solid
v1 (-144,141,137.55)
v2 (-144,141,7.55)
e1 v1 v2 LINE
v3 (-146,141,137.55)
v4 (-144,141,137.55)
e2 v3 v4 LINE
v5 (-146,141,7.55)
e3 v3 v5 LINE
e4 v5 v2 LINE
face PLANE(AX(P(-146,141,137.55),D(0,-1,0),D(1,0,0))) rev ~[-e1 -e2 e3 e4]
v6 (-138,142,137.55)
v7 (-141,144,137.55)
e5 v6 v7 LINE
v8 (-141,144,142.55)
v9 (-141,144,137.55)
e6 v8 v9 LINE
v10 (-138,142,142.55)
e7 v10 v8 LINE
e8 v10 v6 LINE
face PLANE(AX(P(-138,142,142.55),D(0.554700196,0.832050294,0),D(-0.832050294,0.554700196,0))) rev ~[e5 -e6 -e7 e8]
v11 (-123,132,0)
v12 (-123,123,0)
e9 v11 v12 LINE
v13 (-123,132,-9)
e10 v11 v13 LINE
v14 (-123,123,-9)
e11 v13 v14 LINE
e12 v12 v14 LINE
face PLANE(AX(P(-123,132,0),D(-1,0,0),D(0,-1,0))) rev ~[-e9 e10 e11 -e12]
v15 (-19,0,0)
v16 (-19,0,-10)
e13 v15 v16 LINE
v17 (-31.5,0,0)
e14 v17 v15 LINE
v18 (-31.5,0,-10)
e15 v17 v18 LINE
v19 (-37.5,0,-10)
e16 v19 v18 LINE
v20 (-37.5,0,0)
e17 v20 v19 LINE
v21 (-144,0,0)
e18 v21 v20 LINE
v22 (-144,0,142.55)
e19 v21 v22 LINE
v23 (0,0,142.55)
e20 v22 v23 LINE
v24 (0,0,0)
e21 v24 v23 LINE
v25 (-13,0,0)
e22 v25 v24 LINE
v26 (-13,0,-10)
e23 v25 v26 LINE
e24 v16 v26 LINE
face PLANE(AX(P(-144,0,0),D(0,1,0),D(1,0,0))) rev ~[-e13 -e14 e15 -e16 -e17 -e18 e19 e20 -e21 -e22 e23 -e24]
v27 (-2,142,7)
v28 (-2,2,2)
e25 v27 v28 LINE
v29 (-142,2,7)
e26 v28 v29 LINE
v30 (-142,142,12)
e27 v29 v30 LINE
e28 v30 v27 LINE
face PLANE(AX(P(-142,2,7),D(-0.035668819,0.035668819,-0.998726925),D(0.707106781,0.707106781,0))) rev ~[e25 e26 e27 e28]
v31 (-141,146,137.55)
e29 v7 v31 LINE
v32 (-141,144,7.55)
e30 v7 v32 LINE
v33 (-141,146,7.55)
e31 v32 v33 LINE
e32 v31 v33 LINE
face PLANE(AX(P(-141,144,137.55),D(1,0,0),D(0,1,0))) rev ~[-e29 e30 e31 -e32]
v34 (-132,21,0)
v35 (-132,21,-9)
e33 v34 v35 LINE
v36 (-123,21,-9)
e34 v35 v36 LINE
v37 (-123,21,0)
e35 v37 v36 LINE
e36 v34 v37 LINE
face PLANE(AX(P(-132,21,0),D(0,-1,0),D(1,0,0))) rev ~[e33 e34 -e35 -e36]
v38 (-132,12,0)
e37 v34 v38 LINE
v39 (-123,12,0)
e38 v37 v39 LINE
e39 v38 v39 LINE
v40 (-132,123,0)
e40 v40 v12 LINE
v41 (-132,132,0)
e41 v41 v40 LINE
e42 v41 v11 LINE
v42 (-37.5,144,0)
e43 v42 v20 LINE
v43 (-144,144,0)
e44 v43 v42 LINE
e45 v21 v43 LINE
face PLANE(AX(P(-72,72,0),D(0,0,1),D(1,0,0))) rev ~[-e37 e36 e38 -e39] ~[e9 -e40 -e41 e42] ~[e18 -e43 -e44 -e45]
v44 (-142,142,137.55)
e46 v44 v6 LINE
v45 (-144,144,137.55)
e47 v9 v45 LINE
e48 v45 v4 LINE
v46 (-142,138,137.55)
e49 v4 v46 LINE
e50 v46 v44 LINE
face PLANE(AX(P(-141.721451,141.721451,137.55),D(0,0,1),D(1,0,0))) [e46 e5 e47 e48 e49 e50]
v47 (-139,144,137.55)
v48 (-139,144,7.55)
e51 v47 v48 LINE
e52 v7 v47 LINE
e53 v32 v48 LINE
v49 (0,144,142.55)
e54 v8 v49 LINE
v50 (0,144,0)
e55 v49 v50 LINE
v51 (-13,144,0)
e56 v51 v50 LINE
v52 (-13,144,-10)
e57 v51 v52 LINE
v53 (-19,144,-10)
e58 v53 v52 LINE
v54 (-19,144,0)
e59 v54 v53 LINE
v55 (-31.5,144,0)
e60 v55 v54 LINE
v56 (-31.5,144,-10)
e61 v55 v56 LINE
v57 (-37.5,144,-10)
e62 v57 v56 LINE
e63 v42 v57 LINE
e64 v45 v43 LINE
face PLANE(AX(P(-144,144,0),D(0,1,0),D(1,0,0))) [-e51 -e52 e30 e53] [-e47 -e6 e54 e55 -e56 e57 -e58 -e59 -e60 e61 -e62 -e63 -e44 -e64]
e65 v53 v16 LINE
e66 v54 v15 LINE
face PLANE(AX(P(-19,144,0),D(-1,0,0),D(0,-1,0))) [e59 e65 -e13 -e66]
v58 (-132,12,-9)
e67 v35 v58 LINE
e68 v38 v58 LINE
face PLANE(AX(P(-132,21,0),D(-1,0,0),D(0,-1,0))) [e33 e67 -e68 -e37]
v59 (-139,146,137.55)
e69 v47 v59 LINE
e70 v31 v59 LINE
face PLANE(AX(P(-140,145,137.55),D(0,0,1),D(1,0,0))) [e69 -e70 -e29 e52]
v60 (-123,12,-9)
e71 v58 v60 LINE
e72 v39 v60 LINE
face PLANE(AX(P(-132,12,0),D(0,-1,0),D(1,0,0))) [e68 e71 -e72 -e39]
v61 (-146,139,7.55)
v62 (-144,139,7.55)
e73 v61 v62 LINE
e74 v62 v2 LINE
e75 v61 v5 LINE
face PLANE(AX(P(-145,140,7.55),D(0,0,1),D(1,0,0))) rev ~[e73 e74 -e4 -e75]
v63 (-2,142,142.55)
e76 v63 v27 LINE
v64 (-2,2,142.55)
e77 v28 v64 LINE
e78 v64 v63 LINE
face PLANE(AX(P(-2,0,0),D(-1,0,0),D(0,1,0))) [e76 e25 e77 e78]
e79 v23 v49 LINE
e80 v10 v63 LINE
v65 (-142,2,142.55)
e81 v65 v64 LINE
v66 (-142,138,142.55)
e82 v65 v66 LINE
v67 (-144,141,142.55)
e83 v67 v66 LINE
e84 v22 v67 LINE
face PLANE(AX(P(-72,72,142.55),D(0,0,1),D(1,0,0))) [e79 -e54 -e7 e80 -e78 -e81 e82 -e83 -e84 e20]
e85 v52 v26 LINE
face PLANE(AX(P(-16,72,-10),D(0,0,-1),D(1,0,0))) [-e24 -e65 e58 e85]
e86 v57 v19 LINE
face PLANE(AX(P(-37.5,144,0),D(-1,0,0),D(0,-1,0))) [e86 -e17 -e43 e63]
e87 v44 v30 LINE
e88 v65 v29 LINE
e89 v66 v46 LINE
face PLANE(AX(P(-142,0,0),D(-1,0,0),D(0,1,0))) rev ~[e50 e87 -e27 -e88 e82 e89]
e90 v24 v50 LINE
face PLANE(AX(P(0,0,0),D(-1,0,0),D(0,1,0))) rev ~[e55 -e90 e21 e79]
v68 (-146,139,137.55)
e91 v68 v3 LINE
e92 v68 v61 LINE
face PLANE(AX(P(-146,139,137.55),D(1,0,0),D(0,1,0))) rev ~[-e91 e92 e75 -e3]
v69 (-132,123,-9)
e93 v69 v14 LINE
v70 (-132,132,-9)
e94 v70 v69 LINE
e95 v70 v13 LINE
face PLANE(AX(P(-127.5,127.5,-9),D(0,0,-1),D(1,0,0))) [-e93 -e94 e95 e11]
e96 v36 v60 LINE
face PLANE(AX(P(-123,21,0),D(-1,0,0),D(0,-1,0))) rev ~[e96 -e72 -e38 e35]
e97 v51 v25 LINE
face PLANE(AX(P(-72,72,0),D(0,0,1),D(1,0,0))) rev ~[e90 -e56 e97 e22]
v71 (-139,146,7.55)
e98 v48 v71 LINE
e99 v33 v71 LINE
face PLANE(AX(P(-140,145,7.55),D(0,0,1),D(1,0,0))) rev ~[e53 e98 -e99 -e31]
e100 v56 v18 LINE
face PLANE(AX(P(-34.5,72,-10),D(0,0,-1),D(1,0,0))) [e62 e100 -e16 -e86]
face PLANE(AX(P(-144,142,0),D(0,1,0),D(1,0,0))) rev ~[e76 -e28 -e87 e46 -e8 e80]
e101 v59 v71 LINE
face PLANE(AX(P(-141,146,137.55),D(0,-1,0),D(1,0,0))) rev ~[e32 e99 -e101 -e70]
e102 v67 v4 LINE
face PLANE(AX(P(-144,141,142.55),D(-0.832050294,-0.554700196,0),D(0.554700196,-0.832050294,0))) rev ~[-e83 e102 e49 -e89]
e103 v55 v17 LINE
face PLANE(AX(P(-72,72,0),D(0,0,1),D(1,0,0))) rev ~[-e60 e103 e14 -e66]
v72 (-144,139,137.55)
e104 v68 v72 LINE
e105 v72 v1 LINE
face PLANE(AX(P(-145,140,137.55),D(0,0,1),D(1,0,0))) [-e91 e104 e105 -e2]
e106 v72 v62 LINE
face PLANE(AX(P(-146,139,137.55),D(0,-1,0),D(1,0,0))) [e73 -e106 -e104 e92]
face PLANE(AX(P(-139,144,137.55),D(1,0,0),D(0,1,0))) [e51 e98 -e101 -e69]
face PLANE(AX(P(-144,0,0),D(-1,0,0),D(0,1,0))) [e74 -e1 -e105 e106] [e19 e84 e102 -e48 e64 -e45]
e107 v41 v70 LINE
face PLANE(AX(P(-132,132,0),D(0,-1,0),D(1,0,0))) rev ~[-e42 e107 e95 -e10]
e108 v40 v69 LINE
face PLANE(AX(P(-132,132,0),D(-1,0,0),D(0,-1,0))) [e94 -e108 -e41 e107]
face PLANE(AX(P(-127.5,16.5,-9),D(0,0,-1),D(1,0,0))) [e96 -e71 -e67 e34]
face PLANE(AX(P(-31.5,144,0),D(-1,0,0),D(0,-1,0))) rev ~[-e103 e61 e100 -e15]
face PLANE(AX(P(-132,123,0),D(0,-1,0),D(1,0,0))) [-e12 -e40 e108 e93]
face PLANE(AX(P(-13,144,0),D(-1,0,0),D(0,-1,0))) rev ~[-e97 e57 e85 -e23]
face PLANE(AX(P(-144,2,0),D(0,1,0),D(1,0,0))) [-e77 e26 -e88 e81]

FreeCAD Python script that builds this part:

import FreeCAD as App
import Part
import Sketcher
Q = App.Units.Quantity


def faces_at(feature, points):
    """Names of the faces that lie closest to the given points."""
    faces = feature.Shape.Faces
    near = lambda p: min(range(len(faces)), key=lambda i: faces[i].distToShape(Part.Vertex(*p))[0])
    return sorted({f"Face{near(p) + 1}" for p in points})


def add_polygon(sketch, points):
    """Adds a closed chain of lines whose ends are joined by coincident constraints."""
    first, n = sketch.GeometryCount, len(points)
    for a, b in zip(points, points[1:] + points[:1]):
        sketch.addGeometry(Part.LineSegment(App.Vector(*a, 0), App.Vector(*b, 0)), False)
    for i in range(n):
        sketch.addConstraint(Sketcher.Constraint("Coincident", first + i, 2, first + (i + 1) % n, 1))

doc = App.newDocument("Part")
params = doc.addObject("Spreadsheet::Sheet", "Params")
for row, (alias, value) in enumerate([
    ("sketch1_width", "144 mm"),
    ("pad1_length", "25 mm"),
    ("sketch2_width", "144 mm"),
    ("pad2_length", "142.55 mm"),
    ("thickness_wall", "2 mm"),
    ("sketch3_width", "144 mm"),
    ("sketch5_width", "4 mm"),
    ("sketch5_width2", "3 mm"),
    ("pocket1_length", "5 mm"),
    ("sketch6_width", "2 mm"),
    ("pad3_length", "130 mm"),
    ("sketch7_width", "6 mm"),
    ("sketch7_height", "144 mm"),
    ("pad4_length", "10 mm"),
    ("sketch8_width", "9 mm"),
    ("pad5_length", "9 mm"),
], start=1):
    params.set(f"A{row}", alias)
    params.set(f"B{row}", "=" + value)
    params.setAlias(f"B{row}", alias)

body = doc.addObject("PartDesign::Body", "Body")

# Sketch on XY plane
sketch1 = doc.addObject("Sketcher::SketchObject", "Sketch")
body.addObject(sketch1)
sketch1.AttachmentSupport = (doc.XY_Plane, [""])
sketch1.MapMode = "FlatFace"
add_polygon(sketch1, [(-144, 144), (-144, 0), (0, 0), (0, 144)])  # lines 0-3
sketch1.addConstraint([
    Sketcher.Constraint("Vertical", 0),
    Sketcher.Constraint("Horizontal", 1),
    Sketcher.Constraint("Vertical", 2),
    Sketcher.Constraint("Horizontal", 3),
    Sketcher.Constraint("Coincident", 1, 2, -1, 1),
    Sketcher.Constraint("Equal", 3, 0),
    Sketcher.Constraint("DistanceX", 1, 1, 1, 2, Q("144 mm")),
])
sketch1.setExpression("Constraints[10]", "Params.sketch1_width")
pad1 = doc.addObject("PartDesign::Pad", "Pad")
body.addObject(pad1)
pad1.Profile = sketch1
pad1.setExpression("Length", "Params.pad1_length")

# Sketch on XY plane
sketch2 = doc.addObject("Sketcher::SketchObject", "Sketch001")
body.addObject(sketch2)
sketch2.AttachmentSupport = (doc.XY_Plane, [""])
sketch2.MapMode = "FlatFace"
add_polygon(sketch2, [(-144, 144), (-144, 0), (0, 0), (0, 144)])  # lines 0-3
sketch2.addConstraint([
    Sketcher.Constraint("Vertical", 0),
    Sketcher.Constraint("Horizontal", 1),
    Sketcher.Constraint("Vertical", 2),
    Sketcher.Constraint("Horizontal", 3),
    Sketcher.Constraint("Coincident", 1, 2, -1, 1),
    Sketcher.Constraint("Equal", 3, 0),
    Sketcher.Constraint("DistanceX", 1, 1, 1, 2, Q("144 mm")),
])
sketch2.setExpression("Constraints[10]", "Params.sketch2_width")
pad2 = doc.addObject("PartDesign::Pad", "Pad001")
body.addObject(pad2)
pad2.Profile = sketch2
pad2.setExpression("Length", "Params.pad2_length")
doc.recompute()

thickness = doc.addObject("PartDesign::Thickness", "Thickness")
body.addObject(thickness)
thickness.Base = (pad2, faces_at(pad2, [(-72, 72, 142.55)]))
thickness.setExpression("Value", "Params.thickness_wall")
thickness.Reversed = True
thickness.Join = "Arc"

# Sketch on XY plane
sketch3 = doc.addObject("Sketcher::SketchObject", "Sketch002")
body.addObject(sketch3)
sketch3.AttachmentSupport = (doc.XY_Plane, [""])
sketch3.MapMode = "FlatFace"
add_polygon(sketch3, [(-144, 0), (-144, 144), (0, 144), (0, 0)])  # lines 0-3
sketch3.addConstraint([
    Sketcher.Constraint("Vertical", 0),
    Sketcher.Constraint("Horizontal", 1),
    Sketcher.Constraint("Vertical", 2),
    Sketcher.Constraint("Horizontal", 3),
    Sketcher.Constraint("Coincident", 2, 2, -1, 1),
    Sketcher.Constraint("Equal", 3, 0),
    Sketcher.Constraint("DistanceX", 1, 1, 1, 2, Q("144 mm")),
])
sketch3.setExpression("Constraints[10]", "Params.sketch3_width")

# Sketch on an angled plane
sketch4 = doc.addObject("Sketcher::SketchObject", "Sketch003")
body.addObject(sketch4)
sketch4.Placement = App.Placement(App.Vector(0.066158, -0.066158, 1.852417), App.Rotation(App.Vector(0.999363665, 0.001273075, -0.035646093), App.Vector(0, -0.999362854, -0.035691531), App.Vector(-0.035668819, 0.035668819, -0.998726925), "ZXY"))
add_polygon(sketch4, [(-2, -142), (-2, -2), (-142, -2), (-142, -142)])  # lines 0-3
sketch4.addConstraint([
    Sketcher.Constraint("Vertical", 0),
    Sketcher.Constraint("Vertical", 2),
    Sketcher.Constraint("Parallel", 1, 3),
    Sketcher.Constraint("DistanceY", 3, 2, 1, 2, Q("139.9108 mm")),
    Sketcher.Constraint("DistanceY", 0, 1, 0, 2, Q("140.089257 mm")),
    Sketcher.Constraint("DistanceY", 0, 2, -1, 1, Q("2.070109 mm")),
    Sketcher.Constraint("Distance", 1, Q("140.089257 mm")),
    Sketcher.Constraint("DistanceX", 0, 2, -1, 1, Q("2.067473 mm")),
])

additiveloft = doc.addObject("PartDesign::AdditiveLoft", "AdditiveLoft")
body.addObject(additiveloft)
additiveloft.Profile = sketch3
additiveloft.Sections = [sketch4]

# Sketch on XY plane
sketch5 = doc.addObject("Sketcher::SketchObject", "Sketch004")
body.addObject(sketch5)
sketch5.AttachmentSupport = (doc.XY_Plane, [""])
sketch5.MapMode = "FlatFace"
sketch5.AttachmentOffset = App.Placement(App.Vector(0, 0, 142.55), App.Rotation())
add_polygon(sketch5, [(-142, 142), (-138, 142), (-141, 144), (-144, 144), (-144, 141), (-142, 138)])  # lines 0-5
sketch5.addConstraint([
    Sketcher.Constraint("Horizontal", 0),
    Sketcher.Constraint("Horizontal", 2),
    Sketcher.Constraint("Vertical", 3),
    Sketcher.Constraint("Vertical", 5),
    Sketcher.Constraint("Equal", 2, 3),
    Sketcher.Constraint("Equal", 0, 5),
    Sketcher.Constraint("Equal", 1, 4),
    Sketcher.Constraint("DistanceX", 0, 1, 0, 2, Q("4 mm")),
    Sketcher.Constraint("DistanceX", 2, 2, 2, 1, Q("3 mm")),
    Sketcher.Constraint("DistanceX", 0, 2, -1, 1, Q("138 mm")),
    Sketcher.Constraint("DistanceY", -1, 1, 0, 2, Q("142 mm")),
    Sketcher.Constraint("DistanceX", 1, 2, -1, 1, Q("141 mm")),
])
sketch5.setExpression("Constraints[13]", "Params.sketch5_width")
sketch5.setExpression("Constraints[14]", "Params.sketch5_width2")
pocket1 = doc.addObject("PartDesign::Pocket", "Pocket")
body.addObject(pocket1)
pocket1.Profile = sketch5
pocket1.setExpression("Length", "Params.pocket1_length")

# Sketch on XY plane
sketch6 = doc.addObject("Sketcher::SketchObject", "Sketch005")
body.addObject(sketch6)
sketch6.AttachmentSupport = (doc.XY_Plane, [""])
sketch6.MapMode = "FlatFace"
sketch6.AttachmentOffset = App.Placement(App.Vector(0, 0, 137.55), App.Rotation())
add_polygon(sketch6, [(-141, 146), (-141, 144), (-139, 144), (-139, 146)])  # lines 0-3
add_polygon(sketch6, [(-146, 141), (-146, 139), (-144, 139), (-144, 141)])  # lines 4-7
sketch6.addConstraint([
    Sketcher.Constraint("Vertical", 0),
    Sketcher.Constraint("Horizontal", 1),
    Sketcher.Constraint("Vertical", 2),
    Sketcher.Constraint("Horizontal", 3),
    Sketcher.Constraint("Vertical", 4),
    Sketcher.Constraint("Horizontal", 5),
    Sketcher.Constraint("Vertical", 6),
    Sketcher.Constraint("Horizontal", 7),
    Sketcher.Constraint("Equal", 3, 5),
    Sketcher.Constraint("Equal", 7, 0),
    Sketcher.Constraint("Equal", 2, 4),
    Sketcher.Constraint("DistanceX", 1, 1, 1, 2, Q("2 mm")),
    Sketcher.Constraint("DistanceX", 0, 2, -1, 1, Q("141 mm")),
    Sketcher.Constraint("DistanceY", -1, 1, 0, 2, Q("144 mm")),
    Sketcher.Constraint("DistanceX", 4, 2, -1, 1, Q("146 mm")),
    Sketcher.Constraint("DistanceY", -1, 1, 4, 2, Q("139 mm")),
])
sketch6.setExpression("Constraints[19]", "Params.sketch6_width")
pad3 = doc.addObject("PartDesign::Pad", "Pad002")
body.addObject(pad3)
pad3.Profile = sketch6
pad3.setExpression("Length", "Params.pad3_length")
pad3.Reversed = True

# Sketch on XY plane
sketch7 = doc.addObject("Sketcher::SketchObject", "Sketch006")
body.addObject(sketch7)
sketch7.AttachmentSupport = (doc.XY_Plane, [""])
sketch7.MapMode = "FlatFace"
add_polygon(sketch7, [(-19, 0), (-19, 144), (-13, 144), (-13, 0)])  # lines 0-3
add_polygon(sketch7, [(-38, 0), (-38, 144), (-32, 144), (-32, 0)])  # lines 4-7
sketch7.addConstraint([
    Sketcher.Constraint("Vertical", 0),
    Sketcher.Constraint("Horizontal", 1),
    Sketcher.Constraint("Vertical", 2),
    Sketcher.Constraint("Horizontal", 3),
    Sketcher.Constraint("Vertical", 4),
    Sketcher.Constraint("Horizontal", 5),
    Sketcher.Constraint("Vertical", 6),
    Sketcher.Constraint("Horizontal", 7),
    Sketcher.Constraint("PointOnObject", 2, 2, -1),
    Sketcher.Constraint("PointOnObject", 6, 2, -1),
    Sketcher.Constraint("Horizontal", 1, 2, 4, 2),
    Sketcher.Constraint("Equal", 3, 5),
    Sketcher.Constraint("DistanceX", 1, 1, 1, 2, Q("6 mm")),
    Sketcher.Constraint("DistanceY", 0, 1, 0, 2, Q("144 mm")),
    Sketcher.Constraint("DistanceX", 0, 2, -1, 1, Q("19 mm")),
    Sketcher.Constraint("DistanceX", 4, 2, -1, 1, Q("37.5 mm")),
])
sketch7.setExpression("Constraints[20]", "Params.sketch7_width")
sketch7.setExpression("Constraints[21]", "Params.sketch7_height")
pad4 = doc.addObject("PartDesign::Pad", "Pad003")
body.addObject(pad4)
pad4.Profile = sketch7
pad4.setExpression("Length", "Params.pad4_length")
pad4.Reversed = True

# Sketch on XY plane
sketch8 = doc.addObject("Sketcher::SketchObject", "Sketch007")
body.addObject(sketch8)
sketch8.AttachmentSupport = (doc.XY_Plane, [""])
sketch8.MapMode = "FlatFace"
add_polygon(sketch8, [(-132, 123), (-132, 132), (-123, 132), (-123, 123)])  # lines 0-3
add_polygon(sketch8, [(-132, 12), (-132, 21), (-123, 21), (-123, 12)])  # lines 4-7
sketch8.addConstraint([
    Sketcher.Constraint("Vertical", 0),
    Sketcher.Constraint("Horizontal", 1),
    Sketcher.Constraint("Vertical", 2),
    Sketcher.Constraint("Horizontal", 3),
    Sketcher.Constraint("Vertical", 4),
    Sketcher.Constraint("Horizontal", 5),
    Sketcher.Constraint("Vertical", 6),
    Sketcher.Constraint("Horizontal", 7),
    Sketcher.Constraint("Vertical", 3, 2, 4, 2),
    Sketcher.Constraint("Vertical", 2, 2, 5, 2),
    Sketcher.Constraint("Equal", 7, 0),
    Sketcher.Constraint("Equal", 2, 4),
    Sketcher.Constraint("DistanceX", 1, 1, 1, 2, Q("9 mm")),
    Sketcher.Constraint("DistanceX", 0, 2, -1, 1, Q("132 mm")),
    Sketcher.Constraint("DistanceY", -1, 1, 0, 2, Q("132 mm")),
    Sketcher.Constraint("DistanceY", -1, 1, 4, 2, Q("21 mm")),
])
sketch8.setExpression("Constraints[20]", "Params.sketch8_width")
pad5 = doc.addObject("PartDesign::Pad", "Pad004")
body.addObject(pad5)
pad5.Profile = sketch8
pad5.setExpression("Length", "Params.pad5_length")
pad5.Reversed = True

doc.recompute()
